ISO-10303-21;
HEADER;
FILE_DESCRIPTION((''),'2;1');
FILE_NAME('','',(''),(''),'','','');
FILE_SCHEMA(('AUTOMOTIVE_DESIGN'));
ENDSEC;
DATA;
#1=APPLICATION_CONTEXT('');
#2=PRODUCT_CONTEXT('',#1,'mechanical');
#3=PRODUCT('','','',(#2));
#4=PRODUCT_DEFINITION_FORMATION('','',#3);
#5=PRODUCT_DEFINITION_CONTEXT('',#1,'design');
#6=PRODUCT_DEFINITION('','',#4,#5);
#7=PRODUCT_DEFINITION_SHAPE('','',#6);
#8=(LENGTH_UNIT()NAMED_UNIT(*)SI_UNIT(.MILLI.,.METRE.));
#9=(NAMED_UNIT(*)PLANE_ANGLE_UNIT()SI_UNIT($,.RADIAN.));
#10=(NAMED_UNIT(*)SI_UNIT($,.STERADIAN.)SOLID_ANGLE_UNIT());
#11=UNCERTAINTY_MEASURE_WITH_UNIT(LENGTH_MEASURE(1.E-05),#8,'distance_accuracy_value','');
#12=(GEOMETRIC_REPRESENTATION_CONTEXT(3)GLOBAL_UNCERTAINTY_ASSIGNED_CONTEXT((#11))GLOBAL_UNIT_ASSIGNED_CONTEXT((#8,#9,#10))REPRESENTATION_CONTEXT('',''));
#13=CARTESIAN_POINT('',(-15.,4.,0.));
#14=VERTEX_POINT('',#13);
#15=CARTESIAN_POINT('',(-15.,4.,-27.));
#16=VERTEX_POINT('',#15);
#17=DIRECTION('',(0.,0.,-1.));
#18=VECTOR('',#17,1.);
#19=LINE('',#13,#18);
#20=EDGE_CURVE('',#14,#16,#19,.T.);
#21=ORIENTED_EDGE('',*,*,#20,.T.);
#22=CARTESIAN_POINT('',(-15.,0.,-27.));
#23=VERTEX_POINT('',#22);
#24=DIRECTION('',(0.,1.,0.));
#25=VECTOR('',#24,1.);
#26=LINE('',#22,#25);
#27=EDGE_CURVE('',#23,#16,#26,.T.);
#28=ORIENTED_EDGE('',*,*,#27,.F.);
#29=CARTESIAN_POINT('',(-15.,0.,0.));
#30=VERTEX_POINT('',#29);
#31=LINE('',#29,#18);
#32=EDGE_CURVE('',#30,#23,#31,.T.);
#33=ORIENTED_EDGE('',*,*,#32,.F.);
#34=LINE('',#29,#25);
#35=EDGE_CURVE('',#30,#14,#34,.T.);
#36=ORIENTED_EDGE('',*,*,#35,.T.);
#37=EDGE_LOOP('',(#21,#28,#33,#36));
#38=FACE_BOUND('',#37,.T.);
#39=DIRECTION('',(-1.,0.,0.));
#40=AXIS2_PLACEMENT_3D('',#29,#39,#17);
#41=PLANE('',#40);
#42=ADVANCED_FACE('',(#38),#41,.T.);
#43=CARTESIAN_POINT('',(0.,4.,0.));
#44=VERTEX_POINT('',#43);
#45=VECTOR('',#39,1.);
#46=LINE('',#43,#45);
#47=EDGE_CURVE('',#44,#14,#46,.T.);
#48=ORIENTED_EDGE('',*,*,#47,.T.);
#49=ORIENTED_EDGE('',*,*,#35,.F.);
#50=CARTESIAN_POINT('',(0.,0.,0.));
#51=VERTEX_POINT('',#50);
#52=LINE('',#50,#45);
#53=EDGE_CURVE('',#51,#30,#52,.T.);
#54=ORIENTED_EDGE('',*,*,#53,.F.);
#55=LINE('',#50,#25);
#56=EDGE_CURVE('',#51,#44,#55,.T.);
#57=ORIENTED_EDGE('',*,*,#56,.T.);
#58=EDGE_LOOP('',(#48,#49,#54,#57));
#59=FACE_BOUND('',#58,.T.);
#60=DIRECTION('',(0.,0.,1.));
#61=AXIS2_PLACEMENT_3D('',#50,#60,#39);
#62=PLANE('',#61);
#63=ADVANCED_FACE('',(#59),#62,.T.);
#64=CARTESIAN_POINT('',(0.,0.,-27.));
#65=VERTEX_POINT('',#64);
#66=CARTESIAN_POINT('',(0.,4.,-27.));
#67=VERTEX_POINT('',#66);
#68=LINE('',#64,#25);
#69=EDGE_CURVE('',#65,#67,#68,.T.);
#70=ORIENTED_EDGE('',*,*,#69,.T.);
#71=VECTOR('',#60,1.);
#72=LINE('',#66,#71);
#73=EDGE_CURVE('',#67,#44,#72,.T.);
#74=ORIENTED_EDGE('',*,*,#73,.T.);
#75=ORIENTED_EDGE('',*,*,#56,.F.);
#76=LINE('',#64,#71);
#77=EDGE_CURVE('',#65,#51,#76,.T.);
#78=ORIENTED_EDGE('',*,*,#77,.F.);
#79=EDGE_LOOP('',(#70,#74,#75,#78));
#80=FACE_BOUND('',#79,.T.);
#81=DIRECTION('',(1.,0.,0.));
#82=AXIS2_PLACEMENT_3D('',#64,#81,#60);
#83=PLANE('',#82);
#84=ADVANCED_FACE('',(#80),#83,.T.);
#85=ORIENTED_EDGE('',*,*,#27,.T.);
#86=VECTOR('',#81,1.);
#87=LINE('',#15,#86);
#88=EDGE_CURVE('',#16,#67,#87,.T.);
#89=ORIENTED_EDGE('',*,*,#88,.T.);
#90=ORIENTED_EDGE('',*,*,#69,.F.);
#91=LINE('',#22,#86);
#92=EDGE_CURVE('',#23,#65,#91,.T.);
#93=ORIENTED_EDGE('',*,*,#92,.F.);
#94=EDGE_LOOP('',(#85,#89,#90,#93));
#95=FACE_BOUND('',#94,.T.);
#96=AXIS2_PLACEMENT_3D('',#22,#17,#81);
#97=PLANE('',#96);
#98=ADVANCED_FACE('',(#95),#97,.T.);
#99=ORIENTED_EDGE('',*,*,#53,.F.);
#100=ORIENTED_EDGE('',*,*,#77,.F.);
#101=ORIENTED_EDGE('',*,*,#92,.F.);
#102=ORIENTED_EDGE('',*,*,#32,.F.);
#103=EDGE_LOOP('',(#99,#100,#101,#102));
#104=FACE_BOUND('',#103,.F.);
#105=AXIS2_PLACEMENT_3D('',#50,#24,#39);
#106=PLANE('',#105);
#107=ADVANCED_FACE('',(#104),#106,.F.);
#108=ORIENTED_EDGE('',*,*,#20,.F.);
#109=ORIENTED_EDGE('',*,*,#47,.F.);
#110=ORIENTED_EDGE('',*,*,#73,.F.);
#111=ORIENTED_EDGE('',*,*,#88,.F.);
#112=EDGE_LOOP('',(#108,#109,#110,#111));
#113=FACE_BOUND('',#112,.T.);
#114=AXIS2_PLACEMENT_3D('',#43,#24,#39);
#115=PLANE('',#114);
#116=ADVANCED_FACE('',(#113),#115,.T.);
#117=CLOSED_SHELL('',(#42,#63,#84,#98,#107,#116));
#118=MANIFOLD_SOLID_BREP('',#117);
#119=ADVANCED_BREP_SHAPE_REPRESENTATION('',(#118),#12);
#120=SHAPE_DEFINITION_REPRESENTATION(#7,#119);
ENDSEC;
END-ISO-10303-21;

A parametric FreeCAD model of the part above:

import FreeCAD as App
import Part
import Sketcher

doc = App.newDocument("Part")
params = doc.addObject("Spreadsheet::Sheet", "Params")
for row, (alias, value) in enumerate([
    ("sketch1_width", "15 mm"),
    ("sketch1_height", "27 mm"),
    ("pad1_length", "4 mm"),
], start=1):
    params.set(f"A{row}", alias)
    params.set(f"B{row}", "=" + value)
    params.setAlias(f"B{row}", alias)

body = doc.addObject("PartDesign::Body", "Body")

sketch1 = body.newObject("Sketcher::SketchObject", "Sketch")
sketch1.AttachmentSupport = (doc.getObject("XZ_Plane"), [""])
sketch1.MapMode = "FlatFace"
sketch1.addGeometry([
    Part.LineSegment(App.Vector(-15, 0, 0), App.Vector(0, 0, 0)),
    Part.LineSegment(App.Vector(0, 0, 0), App.Vector(0, -27, 0)),
    Part.LineSegment(App.Vector(0, -27, 0), App.Vector(-15, -27, 0)),
    Part.LineSegment(App.Vector(-15, -27, 0), App.Vector(-15, 0, 0)),
], False)
sketch1.addConstraint([
    Sketcher.Constraint("Coincident", 0, 2, 1, 1),
    Sketcher.Constraint("Coincident", 1, 2, 2, 1),
    Sketcher.Constraint("Coincident", 2, 2, 3, 1),
    Sketcher.Constraint("Coincident", 3, 2, 0, 1),
    Sketcher.Constraint("Horizontal", 0),
    Sketcher.Constraint("Vertical", 1),
    Sketcher.Constraint("Horizontal", 2),
    Sketcher.Constraint("Vertical", 3),
    Sketcher.Constraint("Coincident", 0, 2, -1, 1),
    Sketcher.Constraint("DistanceX", 0, 1, 0, 2, 15.0),
    Sketcher.Constraint("DistanceY", 1, 2, 1, 1, 27.0),
])
sketch1.setExpression("Constraints[9]", "Params.sketch1_width")
sketch1.setExpression("Constraints[10]", "Params.sketch1_height")
pad1 = body.newObject("PartDesign::Pad", "Pad")
pad1.Profile = sketch1
pad1.setExpression("Length", "Params.pad1_length")
pad1.Reversed = True

doc.recompute()
